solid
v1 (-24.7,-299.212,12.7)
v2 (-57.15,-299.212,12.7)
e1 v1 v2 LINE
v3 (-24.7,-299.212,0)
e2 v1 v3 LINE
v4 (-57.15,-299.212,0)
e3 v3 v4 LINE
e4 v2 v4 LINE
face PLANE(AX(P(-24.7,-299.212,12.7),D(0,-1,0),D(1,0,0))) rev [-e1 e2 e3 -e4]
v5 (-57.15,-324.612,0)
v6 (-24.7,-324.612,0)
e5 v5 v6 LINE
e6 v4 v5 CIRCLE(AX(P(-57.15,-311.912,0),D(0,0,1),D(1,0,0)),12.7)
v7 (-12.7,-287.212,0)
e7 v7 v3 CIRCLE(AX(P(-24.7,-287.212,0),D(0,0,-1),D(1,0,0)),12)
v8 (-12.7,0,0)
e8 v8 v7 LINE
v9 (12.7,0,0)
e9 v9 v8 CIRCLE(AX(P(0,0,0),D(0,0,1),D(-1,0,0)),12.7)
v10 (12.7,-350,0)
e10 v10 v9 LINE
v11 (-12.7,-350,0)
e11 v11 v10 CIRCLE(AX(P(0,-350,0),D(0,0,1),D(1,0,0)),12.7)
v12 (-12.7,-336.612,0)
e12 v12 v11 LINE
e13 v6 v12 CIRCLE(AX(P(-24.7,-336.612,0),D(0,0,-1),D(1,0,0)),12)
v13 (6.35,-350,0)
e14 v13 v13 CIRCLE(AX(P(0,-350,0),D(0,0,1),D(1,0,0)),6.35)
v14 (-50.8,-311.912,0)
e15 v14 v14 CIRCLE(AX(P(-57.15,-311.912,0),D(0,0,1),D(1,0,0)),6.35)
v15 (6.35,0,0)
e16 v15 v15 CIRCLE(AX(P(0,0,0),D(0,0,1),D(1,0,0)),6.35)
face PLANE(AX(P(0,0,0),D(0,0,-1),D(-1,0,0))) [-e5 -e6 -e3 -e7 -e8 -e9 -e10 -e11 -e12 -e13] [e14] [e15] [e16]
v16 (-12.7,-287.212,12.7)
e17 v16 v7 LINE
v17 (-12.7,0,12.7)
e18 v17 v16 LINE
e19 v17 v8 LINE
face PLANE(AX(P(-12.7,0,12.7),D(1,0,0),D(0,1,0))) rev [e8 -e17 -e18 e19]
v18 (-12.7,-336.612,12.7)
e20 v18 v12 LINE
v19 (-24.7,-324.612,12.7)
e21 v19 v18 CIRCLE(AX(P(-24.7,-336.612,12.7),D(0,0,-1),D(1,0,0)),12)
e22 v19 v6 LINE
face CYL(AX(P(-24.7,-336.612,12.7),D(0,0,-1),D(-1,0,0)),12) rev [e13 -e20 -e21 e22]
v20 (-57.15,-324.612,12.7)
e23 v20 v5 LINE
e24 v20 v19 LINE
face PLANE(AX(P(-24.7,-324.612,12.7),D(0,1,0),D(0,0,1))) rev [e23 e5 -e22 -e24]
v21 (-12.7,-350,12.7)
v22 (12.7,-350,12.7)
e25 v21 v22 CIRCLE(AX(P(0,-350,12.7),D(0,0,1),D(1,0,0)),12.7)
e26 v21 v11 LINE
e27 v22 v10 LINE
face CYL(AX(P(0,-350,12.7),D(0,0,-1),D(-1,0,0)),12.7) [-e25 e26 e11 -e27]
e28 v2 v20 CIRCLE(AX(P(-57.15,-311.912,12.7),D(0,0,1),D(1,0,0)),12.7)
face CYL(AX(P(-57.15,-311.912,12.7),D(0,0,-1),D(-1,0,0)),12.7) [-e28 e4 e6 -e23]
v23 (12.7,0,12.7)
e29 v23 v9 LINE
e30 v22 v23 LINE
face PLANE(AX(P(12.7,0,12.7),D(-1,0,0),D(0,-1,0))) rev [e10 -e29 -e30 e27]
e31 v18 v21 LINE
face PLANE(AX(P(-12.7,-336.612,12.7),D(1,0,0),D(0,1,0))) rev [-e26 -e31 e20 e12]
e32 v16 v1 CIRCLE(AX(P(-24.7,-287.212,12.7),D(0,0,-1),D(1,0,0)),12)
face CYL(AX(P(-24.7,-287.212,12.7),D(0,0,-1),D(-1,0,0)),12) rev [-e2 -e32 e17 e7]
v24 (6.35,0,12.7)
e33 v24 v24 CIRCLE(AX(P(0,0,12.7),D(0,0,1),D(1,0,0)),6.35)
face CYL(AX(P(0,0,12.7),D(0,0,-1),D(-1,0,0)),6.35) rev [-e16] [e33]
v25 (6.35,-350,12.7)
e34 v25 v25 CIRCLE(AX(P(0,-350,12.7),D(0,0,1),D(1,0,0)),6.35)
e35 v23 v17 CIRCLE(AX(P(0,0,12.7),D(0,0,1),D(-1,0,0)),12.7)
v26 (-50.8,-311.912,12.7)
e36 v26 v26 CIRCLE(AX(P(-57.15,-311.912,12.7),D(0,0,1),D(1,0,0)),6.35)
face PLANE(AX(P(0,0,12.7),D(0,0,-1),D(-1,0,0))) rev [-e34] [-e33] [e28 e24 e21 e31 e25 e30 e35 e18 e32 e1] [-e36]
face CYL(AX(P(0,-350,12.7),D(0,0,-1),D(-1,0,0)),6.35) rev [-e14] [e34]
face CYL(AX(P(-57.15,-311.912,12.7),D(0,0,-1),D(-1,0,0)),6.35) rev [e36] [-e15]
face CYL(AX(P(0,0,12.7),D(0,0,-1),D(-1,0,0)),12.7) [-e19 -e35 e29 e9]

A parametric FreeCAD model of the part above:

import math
import FreeCAD as App
import Part
import Sketcher
from FreeCAD import Vector
Q = App.Units.Quantity

doc = App.newDocument("Part")
body = doc.addObject("PartDesign::Body", "Body")

sketch1 = doc.addObject("Sketcher::SketchObject", "Sketch")
body.addObject(sketch1)
sketch1.AttachmentSupport = (doc.XY_Plane, [""])
sketch1.MapMode = "FlatFace"
sketch1.addGeometry([
    Part.LineSegment(Vector(-13, -337, 0), Vector(-13, -350, 0)),
    Part.ArcOfCircle(Part.Circle(Vector(0, -350, 0), Vector(0, 0, 1), 13), math.radians(180), math.radians(360)),
    Part.LineSegment(Vector(13, -350, 0), Vector(13, 0, 0)),
    Part.ArcOfCircle(Part.Circle(Vector(0, 0, 0), Vector(0, 0, 1), 13), math.radians(0), math.radians(180)),
    Part.LineSegment(Vector(-13, 0, 0), Vector(-13, -287, 0)),
    Part.ArcOfCircle(Part.Circle(Vector(-25, -287, 0), Vector(0, 0, 1), 12), math.radians(-90), math.radians(0)),
    Part.LineSegment(Vector(-25, -299, 0), Vector(-57, -299, 0)),
    Part.ArcOfCircle(Part.Circle(Vector(-57, -312, 0), Vector(0, 0, 1), 13), math.radians(90), math.radians(270)),
    Part.LineSegment(Vector(-57, -325, 0), Vector(-25, -325, 0)),
    Part.ArcOfCircle(Part.Circle(Vector(-25, -337, 0), Vector(0, 0, 1), 12), math.radians(0), math.radians(90)),
    Part.Circle(Vector(-57, -312, 0), Vector(0, 0, 1), 6),
    Part.Circle(Vector(0, -350, 0), Vector(0, 0, 1), 6),
    Part.Circle(Vector(0, 0, 0), Vector(0, 0, 1), 6),
], False)
sketch1.addConstraint([
    Sketcher.Constraint("Tangent", 0, 2, 1, 1),
    Sketcher.Constraint("Tangent", 1, 2, 2, 1),
    Sketcher.Constraint("Tangent", 2, 2, 3, 1),
    Sketcher.Constraint("Tangent", 3, 2, 4, 1),
    Sketcher.Constraint("Tangent", 4, 2, 5, 2),
    Sketcher.Constraint("Tangent", 5, 1, 6, 1),
    Sketcher.Constraint("Tangent", 6, 2, 7, 1),
    Sketcher.Constraint("Tangent", 7, 2, 8, 1),
    Sketcher.Constraint("Tangent", 8, 2, 9, 2),
    Sketcher.Constraint("Tangent", 9, 1, 0, 1),
    Sketcher.Constraint("Vertical", 0),
    Sketcher.Constraint("Vertical", 2),
    Sketcher.Constraint("Vertical", 4),
    Sketcher.Constraint("Horizontal", 6),
    Sketcher.Constraint("Horizontal", 8),
    Sketcher.Constraint("Coincident", 3, 3, -1, 1),
    Sketcher.Constraint("Coincident", 12, 3, -1, 1),
    Sketcher.Constraint("Coincident", 10, 3, 7, 3),
    Sketcher.Constraint("Coincident", 11, 3, 1, 3),
    Sketcher.Constraint("Equal", 1, 3),
    Sketcher.Constraint("Equal", 3, 7),
    Sketcher.Constraint("Equal", 5, 9),
    Sketcher.Constraint("Equal", 10, 11),
    Sketcher.Constraint("Equal", 11, 12),
    Sketcher.Constraint("Radius", 5, Q("12 mm")),
    Sketcher.Constraint("Diameter", 10, Q("12.7 mm")),
    Sketcher.Constraint("Radius", 1, Q("12.7 mm")),
    Sketcher.Constraint("DistanceY", 2, 1, 2, 2, Q("350 mm")),
    Sketcher.Constraint("DistanceX", 6, 2, 6, 1, Q("32.45 mm")),
    Sketcher.Constraint("DistanceY", 0, 2, 0, 1, Q("13.388 mm")),
])
pad1 = doc.addObject("PartDesign::Pad", "Pad")
body.addObject(pad1)
pad1.Profile = sketch1
pad1.Length = 12.7

doc.recompute()
